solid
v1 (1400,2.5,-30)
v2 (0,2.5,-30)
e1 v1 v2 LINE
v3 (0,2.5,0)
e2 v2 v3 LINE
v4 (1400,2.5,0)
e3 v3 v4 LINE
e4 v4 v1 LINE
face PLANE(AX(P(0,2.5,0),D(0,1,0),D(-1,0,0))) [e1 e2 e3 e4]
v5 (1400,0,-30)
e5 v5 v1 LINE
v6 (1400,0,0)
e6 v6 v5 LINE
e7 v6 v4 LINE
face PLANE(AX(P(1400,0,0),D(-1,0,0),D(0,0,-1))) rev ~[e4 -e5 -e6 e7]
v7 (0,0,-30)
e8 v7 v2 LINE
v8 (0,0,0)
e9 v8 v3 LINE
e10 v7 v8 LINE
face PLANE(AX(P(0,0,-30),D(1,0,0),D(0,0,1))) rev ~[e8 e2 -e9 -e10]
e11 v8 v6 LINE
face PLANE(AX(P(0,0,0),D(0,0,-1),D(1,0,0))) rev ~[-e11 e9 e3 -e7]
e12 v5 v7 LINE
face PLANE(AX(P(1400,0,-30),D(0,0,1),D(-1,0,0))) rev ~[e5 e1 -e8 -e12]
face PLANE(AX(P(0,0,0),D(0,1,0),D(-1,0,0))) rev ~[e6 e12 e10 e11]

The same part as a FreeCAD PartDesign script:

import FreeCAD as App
import Part
import Sketcher

V = App.Vector
Q = App.Units.Quantity


def add_polygon(sketch, points):
    """Adds a closed chain of lines whose ends are joined by coincident constraints."""
    first, n = sketch.GeometryCount, len(points)
    for a, b in zip(points, points[1:] + points[:1]):
        sketch.addGeometry(Part.LineSegment(App.Vector(*a, 0), App.Vector(*b, 0)), False)
    for i in range(n):
        sketch.addConstraint(Sketcher.Constraint("Coincident", first + i, 2, first + (i + 1) % n, 1))

doc = App.newDocument("Part")
params = doc.addObject("Spreadsheet::Sheet", "Params")
for row, (alias, value) in enumerate([
    ("sketch1_width", "1400 mm"),
    ("sketch1_height", "30 mm"),
    ("pad1_length", "2.5 mm"),
], start=1):
    params.set(f"A{row}", alias)
    params.set(f"B{row}", "=" + value)
    params.setAlias(f"B{row}", alias)

body = doc.addObject("PartDesign::Body", "Body")

sketch1 = body.newObject("Sketcher::SketchObject", "Sketch")
sketch1.AttachmentSupport = (doc.getObject("XZ_Plane"), [""])
sketch1.MapMode = "FlatFace"
add_polygon(sketch1, [(0, -30), (0, 0), (1400, 0), (1400, -30)])
sketch1.addConstraint(Sketcher.Constraint("Vertical", 0))
sketch1.addConstraint(Sketcher.Constraint("Horizontal", 1))
sketch1.addConstraint(Sketcher.Constraint("Vertical", 2))
sketch1.addConstraint(Sketcher.Constraint("Horizontal", 3))
sketch1.addConstraint(Sketcher.Constraint("Coincident", 0, 2, -1, 1))
sketch1.addConstraint(Sketcher.Constraint("DistanceX", 1, 1, 1, 2, Q("1400 mm")))
sketch1.addConstraint(Sketcher.Constraint("DistanceY", 0, 1, 0, 2, Q("30 mm")))
sketch1.setExpression("Constraints[9]", "Params.sketch1_width")
sketch1.setExpression("Constraints[10]", "Params.sketch1_height")
pad1 = body.newObject("PartDesign::Pad", "Pad")
pad1.Profile = sketch1
pad1.setExpression("Length", "Params.pad1_length")
pad1.Reversed = True

doc.recompute()
